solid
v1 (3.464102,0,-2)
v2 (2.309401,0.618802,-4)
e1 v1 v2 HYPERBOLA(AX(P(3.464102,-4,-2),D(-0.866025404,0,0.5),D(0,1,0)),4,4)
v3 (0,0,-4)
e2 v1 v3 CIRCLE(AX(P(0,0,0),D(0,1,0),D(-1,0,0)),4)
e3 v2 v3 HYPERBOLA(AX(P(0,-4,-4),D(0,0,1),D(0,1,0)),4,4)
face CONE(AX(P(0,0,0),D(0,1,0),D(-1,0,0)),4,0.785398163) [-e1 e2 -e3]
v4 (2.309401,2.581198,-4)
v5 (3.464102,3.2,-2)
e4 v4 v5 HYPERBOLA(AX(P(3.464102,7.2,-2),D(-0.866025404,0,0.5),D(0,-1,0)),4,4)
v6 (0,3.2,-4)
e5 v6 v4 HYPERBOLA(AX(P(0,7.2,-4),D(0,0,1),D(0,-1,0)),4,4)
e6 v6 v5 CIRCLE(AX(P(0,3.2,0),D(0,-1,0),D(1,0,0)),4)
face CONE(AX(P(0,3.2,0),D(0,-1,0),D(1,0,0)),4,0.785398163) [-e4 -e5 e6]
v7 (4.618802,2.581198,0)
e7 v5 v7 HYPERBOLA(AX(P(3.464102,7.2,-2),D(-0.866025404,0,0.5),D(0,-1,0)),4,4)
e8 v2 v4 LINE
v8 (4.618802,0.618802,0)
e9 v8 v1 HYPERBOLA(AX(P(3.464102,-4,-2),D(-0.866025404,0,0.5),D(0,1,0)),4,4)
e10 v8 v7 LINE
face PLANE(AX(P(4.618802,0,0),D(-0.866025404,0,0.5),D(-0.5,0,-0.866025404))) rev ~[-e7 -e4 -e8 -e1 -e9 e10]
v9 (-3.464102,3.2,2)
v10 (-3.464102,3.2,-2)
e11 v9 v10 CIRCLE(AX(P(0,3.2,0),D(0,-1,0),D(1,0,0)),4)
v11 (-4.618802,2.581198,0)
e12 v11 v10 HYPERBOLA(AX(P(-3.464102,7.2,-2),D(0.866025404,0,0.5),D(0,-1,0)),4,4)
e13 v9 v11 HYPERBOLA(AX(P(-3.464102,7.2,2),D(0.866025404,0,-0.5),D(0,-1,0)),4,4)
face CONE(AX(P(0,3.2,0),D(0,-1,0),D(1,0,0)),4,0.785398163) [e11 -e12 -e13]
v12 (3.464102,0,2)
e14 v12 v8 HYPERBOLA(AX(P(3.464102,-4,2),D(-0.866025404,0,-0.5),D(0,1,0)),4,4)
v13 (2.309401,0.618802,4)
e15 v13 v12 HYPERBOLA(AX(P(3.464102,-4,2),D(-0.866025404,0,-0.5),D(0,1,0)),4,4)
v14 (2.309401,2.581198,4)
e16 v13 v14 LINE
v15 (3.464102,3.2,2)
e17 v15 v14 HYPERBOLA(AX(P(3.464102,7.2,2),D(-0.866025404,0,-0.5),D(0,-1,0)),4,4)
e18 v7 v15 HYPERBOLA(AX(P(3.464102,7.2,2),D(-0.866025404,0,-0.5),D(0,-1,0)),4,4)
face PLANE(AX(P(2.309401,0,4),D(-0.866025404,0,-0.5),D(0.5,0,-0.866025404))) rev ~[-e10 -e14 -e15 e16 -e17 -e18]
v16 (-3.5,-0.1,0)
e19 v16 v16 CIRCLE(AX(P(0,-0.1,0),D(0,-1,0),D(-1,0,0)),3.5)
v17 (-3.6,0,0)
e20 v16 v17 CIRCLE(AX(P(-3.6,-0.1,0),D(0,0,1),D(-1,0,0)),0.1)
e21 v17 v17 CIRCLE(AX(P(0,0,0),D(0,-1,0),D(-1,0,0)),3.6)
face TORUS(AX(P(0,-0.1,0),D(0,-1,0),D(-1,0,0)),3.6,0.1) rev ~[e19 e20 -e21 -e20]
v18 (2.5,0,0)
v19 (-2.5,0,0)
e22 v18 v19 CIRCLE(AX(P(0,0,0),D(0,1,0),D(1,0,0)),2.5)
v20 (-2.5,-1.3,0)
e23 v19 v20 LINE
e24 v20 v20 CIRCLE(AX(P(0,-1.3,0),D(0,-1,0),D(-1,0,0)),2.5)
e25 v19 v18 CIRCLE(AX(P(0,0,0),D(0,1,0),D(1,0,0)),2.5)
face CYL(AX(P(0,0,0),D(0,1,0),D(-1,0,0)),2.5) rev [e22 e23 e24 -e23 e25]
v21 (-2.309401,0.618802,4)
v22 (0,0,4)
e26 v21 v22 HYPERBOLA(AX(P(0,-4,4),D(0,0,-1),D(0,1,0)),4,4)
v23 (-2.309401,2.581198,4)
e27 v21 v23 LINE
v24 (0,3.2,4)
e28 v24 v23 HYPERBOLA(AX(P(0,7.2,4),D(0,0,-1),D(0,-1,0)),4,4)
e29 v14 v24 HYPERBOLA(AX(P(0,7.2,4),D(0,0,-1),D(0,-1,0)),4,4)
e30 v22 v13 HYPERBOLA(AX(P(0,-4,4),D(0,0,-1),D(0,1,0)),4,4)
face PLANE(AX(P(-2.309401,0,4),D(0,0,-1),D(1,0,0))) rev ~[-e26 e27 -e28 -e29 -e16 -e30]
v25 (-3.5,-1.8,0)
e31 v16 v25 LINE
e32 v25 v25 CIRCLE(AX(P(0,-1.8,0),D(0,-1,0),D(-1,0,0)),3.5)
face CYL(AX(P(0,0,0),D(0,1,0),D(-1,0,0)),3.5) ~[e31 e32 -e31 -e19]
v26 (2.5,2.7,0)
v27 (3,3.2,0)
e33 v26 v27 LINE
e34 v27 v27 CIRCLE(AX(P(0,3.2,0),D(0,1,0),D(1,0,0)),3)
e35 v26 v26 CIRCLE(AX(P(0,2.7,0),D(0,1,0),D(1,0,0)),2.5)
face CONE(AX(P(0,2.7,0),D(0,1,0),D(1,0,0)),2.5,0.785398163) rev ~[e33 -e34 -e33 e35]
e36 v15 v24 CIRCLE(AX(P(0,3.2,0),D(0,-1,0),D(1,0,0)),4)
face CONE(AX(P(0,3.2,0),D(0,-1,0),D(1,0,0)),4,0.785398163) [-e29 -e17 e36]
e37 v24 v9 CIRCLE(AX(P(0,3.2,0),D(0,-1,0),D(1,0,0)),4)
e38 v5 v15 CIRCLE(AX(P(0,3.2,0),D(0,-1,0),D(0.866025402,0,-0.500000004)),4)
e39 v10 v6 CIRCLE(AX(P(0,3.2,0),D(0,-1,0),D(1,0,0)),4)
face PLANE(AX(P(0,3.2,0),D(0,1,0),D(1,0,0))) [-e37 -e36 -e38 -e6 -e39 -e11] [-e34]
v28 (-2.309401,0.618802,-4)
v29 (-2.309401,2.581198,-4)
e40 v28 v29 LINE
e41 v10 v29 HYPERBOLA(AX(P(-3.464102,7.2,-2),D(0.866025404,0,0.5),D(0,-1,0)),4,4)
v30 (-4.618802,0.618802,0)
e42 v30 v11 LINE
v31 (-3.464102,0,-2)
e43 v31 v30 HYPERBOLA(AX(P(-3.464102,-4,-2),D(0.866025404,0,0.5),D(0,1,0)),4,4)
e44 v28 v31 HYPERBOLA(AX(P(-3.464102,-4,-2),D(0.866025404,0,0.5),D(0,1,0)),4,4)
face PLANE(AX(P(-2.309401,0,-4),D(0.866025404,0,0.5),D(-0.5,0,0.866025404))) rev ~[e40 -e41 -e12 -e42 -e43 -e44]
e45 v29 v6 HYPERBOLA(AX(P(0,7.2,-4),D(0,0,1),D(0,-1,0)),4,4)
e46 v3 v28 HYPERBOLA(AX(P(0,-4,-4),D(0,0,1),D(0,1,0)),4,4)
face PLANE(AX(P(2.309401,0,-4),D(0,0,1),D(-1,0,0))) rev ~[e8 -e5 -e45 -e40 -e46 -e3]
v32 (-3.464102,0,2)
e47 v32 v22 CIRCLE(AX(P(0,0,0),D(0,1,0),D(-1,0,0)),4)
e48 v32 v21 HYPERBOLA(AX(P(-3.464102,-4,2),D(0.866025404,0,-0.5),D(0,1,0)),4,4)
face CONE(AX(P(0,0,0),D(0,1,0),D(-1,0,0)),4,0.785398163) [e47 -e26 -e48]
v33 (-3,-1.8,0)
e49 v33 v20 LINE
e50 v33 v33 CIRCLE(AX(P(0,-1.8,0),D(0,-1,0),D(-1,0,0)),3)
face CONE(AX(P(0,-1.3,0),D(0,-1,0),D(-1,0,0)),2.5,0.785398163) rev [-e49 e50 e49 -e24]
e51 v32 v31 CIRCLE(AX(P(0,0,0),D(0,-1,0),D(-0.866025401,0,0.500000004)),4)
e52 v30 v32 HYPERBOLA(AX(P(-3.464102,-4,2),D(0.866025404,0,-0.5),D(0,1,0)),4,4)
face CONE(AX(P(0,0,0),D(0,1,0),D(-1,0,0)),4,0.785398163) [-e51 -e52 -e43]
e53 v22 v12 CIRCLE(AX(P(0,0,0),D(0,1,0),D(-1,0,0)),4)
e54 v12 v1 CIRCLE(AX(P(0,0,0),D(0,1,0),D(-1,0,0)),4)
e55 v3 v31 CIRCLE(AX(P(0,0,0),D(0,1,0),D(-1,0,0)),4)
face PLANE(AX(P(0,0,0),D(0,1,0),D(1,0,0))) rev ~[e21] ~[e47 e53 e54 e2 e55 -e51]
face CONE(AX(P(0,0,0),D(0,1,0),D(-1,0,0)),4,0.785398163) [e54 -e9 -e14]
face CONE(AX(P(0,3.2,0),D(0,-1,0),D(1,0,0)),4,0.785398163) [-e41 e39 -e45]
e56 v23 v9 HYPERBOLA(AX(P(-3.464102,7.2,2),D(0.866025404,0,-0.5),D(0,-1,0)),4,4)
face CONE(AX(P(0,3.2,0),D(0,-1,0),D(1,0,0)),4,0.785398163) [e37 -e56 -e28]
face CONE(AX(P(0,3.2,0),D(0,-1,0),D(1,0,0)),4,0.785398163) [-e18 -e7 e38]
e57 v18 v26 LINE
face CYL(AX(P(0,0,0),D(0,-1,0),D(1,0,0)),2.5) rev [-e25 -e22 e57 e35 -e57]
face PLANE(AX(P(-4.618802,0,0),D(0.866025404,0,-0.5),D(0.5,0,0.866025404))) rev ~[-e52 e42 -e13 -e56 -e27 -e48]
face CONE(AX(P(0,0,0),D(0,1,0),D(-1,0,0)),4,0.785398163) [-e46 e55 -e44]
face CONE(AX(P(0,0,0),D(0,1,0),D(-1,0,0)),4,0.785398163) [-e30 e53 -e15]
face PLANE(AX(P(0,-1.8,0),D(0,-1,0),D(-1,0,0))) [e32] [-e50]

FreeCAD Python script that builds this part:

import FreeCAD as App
import Part
import Sketcher
Q = App.Units.Quantity


def edges_at(feature, points):
    """Names of the edges that pass closest to the given points."""
    edges = feature.Shape.Edges
    near = lambda p: min(range(len(edges)), key=lambda i: edges[i].distToShape(Part.Vertex(*p))[0])
    return sorted({f"Edge{near(p) + 1}" for p in points})

doc = App.newDocument("Part")
body = doc.addObject("PartDesign::Body", "Body")

# Sketch on XZ plane
sketch1 = doc.addObject("Sketcher::SketchObject", "Sketch")
body.addObject(sketch1)
sketch1.AttachmentSupport = (doc.XZ_Plane, [""])
sketch1.MapMode = "FlatFace"
sketch1.addGeometry([
    Part.LineSegment(App.Vector(4.6, 0, 0), App.Vector(2.3, -4, 0)),  # 0
    Part.LineSegment(App.Vector(2.3, -4, 0), App.Vector(-2.3, -4, 0)),  # 1
    Part.LineSegment(App.Vector(-2.3, -4, 0), App.Vector(-4.6, 0, 0)),  # 2
    Part.LineSegment(App.Vector(-4.6, 0, 0), App.Vector(-2.3, 4, 0)),  # 3
    Part.LineSegment(App.Vector(-2.3, 4, 0), App.Vector(2.3, 4, 0)),  # 4
    Part.LineSegment(App.Vector(2.3, 4, 0), App.Vector(4.6, 0, 0)),  # 5
    Part.Circle(App.Vector(0, 0, 0), App.Vector(0, 0, 1), 2.5),  # 6
], False)
sketch1.addConstraint([
    Sketcher.Constraint("Coincident", 0, 2, 1, 1),
    Sketcher.Constraint("Coincident", 1, 2, 2, 1),
    Sketcher.Constraint("Coincident", 2, 2, 3, 1),
    Sketcher.Constraint("Coincident", 3, 2, 4, 1),
    Sketcher.Constraint("Coincident", 4, 2, 5, 1),
    Sketcher.Constraint("Coincident", 5, 2, 0, 1),
    Sketcher.Constraint("Horizontal", 1),
    Sketcher.Constraint("Horizontal", 4),
    Sketcher.Constraint("Coincident", 6, 3, -1, 1),
    Sketcher.Constraint("Symmetric", 0, 2, 3, 2, -1, 1),
    Sketcher.Constraint("Symmetric", 2, 2, 5, 2, -1, 1),
    Sketcher.Constraint("PointOnObject", 2, 2, -1),
    Sketcher.Constraint("Parallel", 2, 5),
    Sketcher.Constraint("Vertical", 1, 2, 3, 2),
    Sketcher.Constraint("Diameter", 6, 5.0),
    Sketcher.Constraint("Angle", 0, Q("-120 deg")),
    Sketcher.Constraint("DistanceY", 0, 2, -1, 1, 4.0),
    Sketcher.Constraint("DistanceX", -1, 1, 0, 2, 2.309401),
])
pad1 = doc.addObject("PartDesign::Pad", "Pad")
body.addObject(pad1)
pad1.Profile = sketch1
pad1.Length = 3.2
pad1.Reversed = True

# Sketch on XZ plane
sketch2 = doc.addObject("Sketcher::SketchObject", "Sketch001")
body.addObject(sketch2)
sketch2.AttachmentSupport = (doc.XZ_Plane, [""])
sketch2.MapMode = "FlatFace"
sketch2.AttachmentOffset = App.Placement(App.Vector(0, 0, -3.2), App.Rotation())
sketch2.addGeometry([
    Part.LineSegment(App.Vector(-11.1, -10.5, 0), App.Vector(-11.1, 10.5, 0)),  # 0
    Part.LineSegment(App.Vector(-11.1, 10.5, 0), App.Vector(11.1, 10.5, 0)),  # 1
    Part.LineSegment(App.Vector(11.1, 10.5, 0), App.Vector(11.1, -10.5, 0)),  # 2
    Part.LineSegment(App.Vector(11.1, -10.5, 0), App.Vector(-11.1, -10.5, 0)),  # 3
    Part.Circle(App.Vector(0, 0, 0), App.Vector(0, 0, 1), 4),  # 4
], False)
sketch2.addConstraint([
    Sketcher.Constraint("Coincident", 0, 2, 1, 1),
    Sketcher.Constraint("Coincident", 1, 2, 2, 1),
    Sketcher.Constraint("Coincident", 2, 2, 3, 1),
    Sketcher.Constraint("Coincident", 3, 2, 0, 1),
    Sketcher.Constraint("Vertical", 0),
    Sketcher.Constraint("Horizontal", 1),
    Sketcher.Constraint("Vertical", 2),
    Sketcher.Constraint("Horizontal", 3),
    Sketcher.Constraint("Coincident", 4, 3, -1, 1),
    Sketcher.Constraint("Symmetric", 0, 2, 2, 2, -1, 1),
    Sketcher.Constraint("Diameter", 4, 8.0),
    Sketcher.Constraint("DistanceX", 1, 1, 1, 2, 22.164),
    Sketcher.Constraint("DistanceY", 0, 1, 0, 2, 20.926),
])
pocket1 = doc.addObject("PartDesign::Pocket", "Pocket")
body.addObject(pocket1)
pocket1.Profile = sketch2
pocket1.Length = 4.2
pocket1.Reversed = True
pocket1.TaperAngle = 45

# Sketch on XZ plane
sketch3 = doc.addObject("Sketcher::SketchObject", "Sketch002")
body.addObject(sketch3)
sketch3.AttachmentSupport = (doc.XZ_Plane, [""])
sketch3.MapMode = "FlatFace"
sketch3.addGeometry([
    Part.Circle(App.Vector(0, 0, 0), App.Vector(0, 0, 1), 3.5),
    Part.Circle(App.Vector(0, 0, 0), App.Vector(0, 0, 1), 2.5),
], False)
sketch3.addConstraint([
    Sketcher.Constraint("Coincident", 0, 3, -1, 1),
    Sketcher.Constraint("Coincident", 1, 3, -1, 1),
    Sketcher.Constraint("Diameter", 0, 7.0),
    Sketcher.Constraint("Diameter", 1, 5.0),
])
pad2 = doc.addObject("PartDesign::Pad", "Pad001")
body.addObject(pad2)
pad2.Profile = sketch3
pad2.Length = 1.8

# Sketch on XZ plane
sketch4 = doc.addObject("Sketcher::SketchObject", "Sketch003")
body.addObject(sketch4)
sketch4.AttachmentSupport = (doc.XZ_Plane, [""])
sketch4.MapMode = "FlatFace"
sketch4.addGeometry([
    Part.LineSegment(App.Vector(16.9, -16.3, 0), App.Vector(16.9, 16.3, 0)),  # 0
    Part.LineSegment(App.Vector(16.9, 16.3, 0), App.Vector(-16.9, 16.3, 0)),  # 1
    Part.LineSegment(App.Vector(-16.9, 16.3, 0), App.Vector(-16.9, -16.3, 0)),  # 2
    Part.LineSegment(App.Vector(-16.9, -16.3, 0), App.Vector(16.9, -16.3, 0)),  # 3
    Part.Circle(App.Vector(0, 0, 0), App.Vector(0, 0, 1), 4),  # 4
], False)
sketch4.addConstraint([
    Sketcher.Constraint("Coincident", 0, 2, 1, 1),
    Sketcher.Constraint("Coincident", 1, 2, 2, 1),
    Sketcher.Constraint("Coincident", 2, 2, 3, 1),
    Sketcher.Constraint("Coincident", 3, 2, 0, 1),
    Sketcher.Constraint("Vertical", 0),
    Sketcher.Constraint("Horizontal", 1),
    Sketcher.Constraint("Vertical", 2),
    Sketcher.Constraint("Horizontal", 3),
    Sketcher.Constraint("Coincident", 4, 3, -1, 1),
    Sketcher.Constraint("Symmetric", 0, 2, 2, 2, -1, 1),
    Sketcher.Constraint("Diameter", 4, 8.0),
    Sketcher.Constraint("DistanceY", 0, 1, 0, 2, 32.64),
    Sketcher.Constraint("DistanceX", 1, 2, 1, 1, 33.878),
])
pocket2 = doc.addObject("PartDesign::Pocket", "Pocket001")
body.addObject(pocket2)
pocket2.Profile = sketch4
pocket2.Length = 10
pocket2.TaperAngle = 45
doc.recompute()

fillet = doc.addObject("PartDesign::Fillet", "Fillet")
body.addObject(fillet)
fillet.Base = (pocket2, edges_at(pocket2, [(3.5, 0, 0)]))
fillet.Radius = 0.1
doc.recompute()

chamfer = doc.addObject("PartDesign::Chamfer", "Chamfer")
body.addObject(chamfer)
chamfer.Base = (fillet, edges_at(fillet, [(-2.5, 3.2, 0), (2.5, -1.8, 0)]))
chamfer.Size = 0.5

doc.recompute()
